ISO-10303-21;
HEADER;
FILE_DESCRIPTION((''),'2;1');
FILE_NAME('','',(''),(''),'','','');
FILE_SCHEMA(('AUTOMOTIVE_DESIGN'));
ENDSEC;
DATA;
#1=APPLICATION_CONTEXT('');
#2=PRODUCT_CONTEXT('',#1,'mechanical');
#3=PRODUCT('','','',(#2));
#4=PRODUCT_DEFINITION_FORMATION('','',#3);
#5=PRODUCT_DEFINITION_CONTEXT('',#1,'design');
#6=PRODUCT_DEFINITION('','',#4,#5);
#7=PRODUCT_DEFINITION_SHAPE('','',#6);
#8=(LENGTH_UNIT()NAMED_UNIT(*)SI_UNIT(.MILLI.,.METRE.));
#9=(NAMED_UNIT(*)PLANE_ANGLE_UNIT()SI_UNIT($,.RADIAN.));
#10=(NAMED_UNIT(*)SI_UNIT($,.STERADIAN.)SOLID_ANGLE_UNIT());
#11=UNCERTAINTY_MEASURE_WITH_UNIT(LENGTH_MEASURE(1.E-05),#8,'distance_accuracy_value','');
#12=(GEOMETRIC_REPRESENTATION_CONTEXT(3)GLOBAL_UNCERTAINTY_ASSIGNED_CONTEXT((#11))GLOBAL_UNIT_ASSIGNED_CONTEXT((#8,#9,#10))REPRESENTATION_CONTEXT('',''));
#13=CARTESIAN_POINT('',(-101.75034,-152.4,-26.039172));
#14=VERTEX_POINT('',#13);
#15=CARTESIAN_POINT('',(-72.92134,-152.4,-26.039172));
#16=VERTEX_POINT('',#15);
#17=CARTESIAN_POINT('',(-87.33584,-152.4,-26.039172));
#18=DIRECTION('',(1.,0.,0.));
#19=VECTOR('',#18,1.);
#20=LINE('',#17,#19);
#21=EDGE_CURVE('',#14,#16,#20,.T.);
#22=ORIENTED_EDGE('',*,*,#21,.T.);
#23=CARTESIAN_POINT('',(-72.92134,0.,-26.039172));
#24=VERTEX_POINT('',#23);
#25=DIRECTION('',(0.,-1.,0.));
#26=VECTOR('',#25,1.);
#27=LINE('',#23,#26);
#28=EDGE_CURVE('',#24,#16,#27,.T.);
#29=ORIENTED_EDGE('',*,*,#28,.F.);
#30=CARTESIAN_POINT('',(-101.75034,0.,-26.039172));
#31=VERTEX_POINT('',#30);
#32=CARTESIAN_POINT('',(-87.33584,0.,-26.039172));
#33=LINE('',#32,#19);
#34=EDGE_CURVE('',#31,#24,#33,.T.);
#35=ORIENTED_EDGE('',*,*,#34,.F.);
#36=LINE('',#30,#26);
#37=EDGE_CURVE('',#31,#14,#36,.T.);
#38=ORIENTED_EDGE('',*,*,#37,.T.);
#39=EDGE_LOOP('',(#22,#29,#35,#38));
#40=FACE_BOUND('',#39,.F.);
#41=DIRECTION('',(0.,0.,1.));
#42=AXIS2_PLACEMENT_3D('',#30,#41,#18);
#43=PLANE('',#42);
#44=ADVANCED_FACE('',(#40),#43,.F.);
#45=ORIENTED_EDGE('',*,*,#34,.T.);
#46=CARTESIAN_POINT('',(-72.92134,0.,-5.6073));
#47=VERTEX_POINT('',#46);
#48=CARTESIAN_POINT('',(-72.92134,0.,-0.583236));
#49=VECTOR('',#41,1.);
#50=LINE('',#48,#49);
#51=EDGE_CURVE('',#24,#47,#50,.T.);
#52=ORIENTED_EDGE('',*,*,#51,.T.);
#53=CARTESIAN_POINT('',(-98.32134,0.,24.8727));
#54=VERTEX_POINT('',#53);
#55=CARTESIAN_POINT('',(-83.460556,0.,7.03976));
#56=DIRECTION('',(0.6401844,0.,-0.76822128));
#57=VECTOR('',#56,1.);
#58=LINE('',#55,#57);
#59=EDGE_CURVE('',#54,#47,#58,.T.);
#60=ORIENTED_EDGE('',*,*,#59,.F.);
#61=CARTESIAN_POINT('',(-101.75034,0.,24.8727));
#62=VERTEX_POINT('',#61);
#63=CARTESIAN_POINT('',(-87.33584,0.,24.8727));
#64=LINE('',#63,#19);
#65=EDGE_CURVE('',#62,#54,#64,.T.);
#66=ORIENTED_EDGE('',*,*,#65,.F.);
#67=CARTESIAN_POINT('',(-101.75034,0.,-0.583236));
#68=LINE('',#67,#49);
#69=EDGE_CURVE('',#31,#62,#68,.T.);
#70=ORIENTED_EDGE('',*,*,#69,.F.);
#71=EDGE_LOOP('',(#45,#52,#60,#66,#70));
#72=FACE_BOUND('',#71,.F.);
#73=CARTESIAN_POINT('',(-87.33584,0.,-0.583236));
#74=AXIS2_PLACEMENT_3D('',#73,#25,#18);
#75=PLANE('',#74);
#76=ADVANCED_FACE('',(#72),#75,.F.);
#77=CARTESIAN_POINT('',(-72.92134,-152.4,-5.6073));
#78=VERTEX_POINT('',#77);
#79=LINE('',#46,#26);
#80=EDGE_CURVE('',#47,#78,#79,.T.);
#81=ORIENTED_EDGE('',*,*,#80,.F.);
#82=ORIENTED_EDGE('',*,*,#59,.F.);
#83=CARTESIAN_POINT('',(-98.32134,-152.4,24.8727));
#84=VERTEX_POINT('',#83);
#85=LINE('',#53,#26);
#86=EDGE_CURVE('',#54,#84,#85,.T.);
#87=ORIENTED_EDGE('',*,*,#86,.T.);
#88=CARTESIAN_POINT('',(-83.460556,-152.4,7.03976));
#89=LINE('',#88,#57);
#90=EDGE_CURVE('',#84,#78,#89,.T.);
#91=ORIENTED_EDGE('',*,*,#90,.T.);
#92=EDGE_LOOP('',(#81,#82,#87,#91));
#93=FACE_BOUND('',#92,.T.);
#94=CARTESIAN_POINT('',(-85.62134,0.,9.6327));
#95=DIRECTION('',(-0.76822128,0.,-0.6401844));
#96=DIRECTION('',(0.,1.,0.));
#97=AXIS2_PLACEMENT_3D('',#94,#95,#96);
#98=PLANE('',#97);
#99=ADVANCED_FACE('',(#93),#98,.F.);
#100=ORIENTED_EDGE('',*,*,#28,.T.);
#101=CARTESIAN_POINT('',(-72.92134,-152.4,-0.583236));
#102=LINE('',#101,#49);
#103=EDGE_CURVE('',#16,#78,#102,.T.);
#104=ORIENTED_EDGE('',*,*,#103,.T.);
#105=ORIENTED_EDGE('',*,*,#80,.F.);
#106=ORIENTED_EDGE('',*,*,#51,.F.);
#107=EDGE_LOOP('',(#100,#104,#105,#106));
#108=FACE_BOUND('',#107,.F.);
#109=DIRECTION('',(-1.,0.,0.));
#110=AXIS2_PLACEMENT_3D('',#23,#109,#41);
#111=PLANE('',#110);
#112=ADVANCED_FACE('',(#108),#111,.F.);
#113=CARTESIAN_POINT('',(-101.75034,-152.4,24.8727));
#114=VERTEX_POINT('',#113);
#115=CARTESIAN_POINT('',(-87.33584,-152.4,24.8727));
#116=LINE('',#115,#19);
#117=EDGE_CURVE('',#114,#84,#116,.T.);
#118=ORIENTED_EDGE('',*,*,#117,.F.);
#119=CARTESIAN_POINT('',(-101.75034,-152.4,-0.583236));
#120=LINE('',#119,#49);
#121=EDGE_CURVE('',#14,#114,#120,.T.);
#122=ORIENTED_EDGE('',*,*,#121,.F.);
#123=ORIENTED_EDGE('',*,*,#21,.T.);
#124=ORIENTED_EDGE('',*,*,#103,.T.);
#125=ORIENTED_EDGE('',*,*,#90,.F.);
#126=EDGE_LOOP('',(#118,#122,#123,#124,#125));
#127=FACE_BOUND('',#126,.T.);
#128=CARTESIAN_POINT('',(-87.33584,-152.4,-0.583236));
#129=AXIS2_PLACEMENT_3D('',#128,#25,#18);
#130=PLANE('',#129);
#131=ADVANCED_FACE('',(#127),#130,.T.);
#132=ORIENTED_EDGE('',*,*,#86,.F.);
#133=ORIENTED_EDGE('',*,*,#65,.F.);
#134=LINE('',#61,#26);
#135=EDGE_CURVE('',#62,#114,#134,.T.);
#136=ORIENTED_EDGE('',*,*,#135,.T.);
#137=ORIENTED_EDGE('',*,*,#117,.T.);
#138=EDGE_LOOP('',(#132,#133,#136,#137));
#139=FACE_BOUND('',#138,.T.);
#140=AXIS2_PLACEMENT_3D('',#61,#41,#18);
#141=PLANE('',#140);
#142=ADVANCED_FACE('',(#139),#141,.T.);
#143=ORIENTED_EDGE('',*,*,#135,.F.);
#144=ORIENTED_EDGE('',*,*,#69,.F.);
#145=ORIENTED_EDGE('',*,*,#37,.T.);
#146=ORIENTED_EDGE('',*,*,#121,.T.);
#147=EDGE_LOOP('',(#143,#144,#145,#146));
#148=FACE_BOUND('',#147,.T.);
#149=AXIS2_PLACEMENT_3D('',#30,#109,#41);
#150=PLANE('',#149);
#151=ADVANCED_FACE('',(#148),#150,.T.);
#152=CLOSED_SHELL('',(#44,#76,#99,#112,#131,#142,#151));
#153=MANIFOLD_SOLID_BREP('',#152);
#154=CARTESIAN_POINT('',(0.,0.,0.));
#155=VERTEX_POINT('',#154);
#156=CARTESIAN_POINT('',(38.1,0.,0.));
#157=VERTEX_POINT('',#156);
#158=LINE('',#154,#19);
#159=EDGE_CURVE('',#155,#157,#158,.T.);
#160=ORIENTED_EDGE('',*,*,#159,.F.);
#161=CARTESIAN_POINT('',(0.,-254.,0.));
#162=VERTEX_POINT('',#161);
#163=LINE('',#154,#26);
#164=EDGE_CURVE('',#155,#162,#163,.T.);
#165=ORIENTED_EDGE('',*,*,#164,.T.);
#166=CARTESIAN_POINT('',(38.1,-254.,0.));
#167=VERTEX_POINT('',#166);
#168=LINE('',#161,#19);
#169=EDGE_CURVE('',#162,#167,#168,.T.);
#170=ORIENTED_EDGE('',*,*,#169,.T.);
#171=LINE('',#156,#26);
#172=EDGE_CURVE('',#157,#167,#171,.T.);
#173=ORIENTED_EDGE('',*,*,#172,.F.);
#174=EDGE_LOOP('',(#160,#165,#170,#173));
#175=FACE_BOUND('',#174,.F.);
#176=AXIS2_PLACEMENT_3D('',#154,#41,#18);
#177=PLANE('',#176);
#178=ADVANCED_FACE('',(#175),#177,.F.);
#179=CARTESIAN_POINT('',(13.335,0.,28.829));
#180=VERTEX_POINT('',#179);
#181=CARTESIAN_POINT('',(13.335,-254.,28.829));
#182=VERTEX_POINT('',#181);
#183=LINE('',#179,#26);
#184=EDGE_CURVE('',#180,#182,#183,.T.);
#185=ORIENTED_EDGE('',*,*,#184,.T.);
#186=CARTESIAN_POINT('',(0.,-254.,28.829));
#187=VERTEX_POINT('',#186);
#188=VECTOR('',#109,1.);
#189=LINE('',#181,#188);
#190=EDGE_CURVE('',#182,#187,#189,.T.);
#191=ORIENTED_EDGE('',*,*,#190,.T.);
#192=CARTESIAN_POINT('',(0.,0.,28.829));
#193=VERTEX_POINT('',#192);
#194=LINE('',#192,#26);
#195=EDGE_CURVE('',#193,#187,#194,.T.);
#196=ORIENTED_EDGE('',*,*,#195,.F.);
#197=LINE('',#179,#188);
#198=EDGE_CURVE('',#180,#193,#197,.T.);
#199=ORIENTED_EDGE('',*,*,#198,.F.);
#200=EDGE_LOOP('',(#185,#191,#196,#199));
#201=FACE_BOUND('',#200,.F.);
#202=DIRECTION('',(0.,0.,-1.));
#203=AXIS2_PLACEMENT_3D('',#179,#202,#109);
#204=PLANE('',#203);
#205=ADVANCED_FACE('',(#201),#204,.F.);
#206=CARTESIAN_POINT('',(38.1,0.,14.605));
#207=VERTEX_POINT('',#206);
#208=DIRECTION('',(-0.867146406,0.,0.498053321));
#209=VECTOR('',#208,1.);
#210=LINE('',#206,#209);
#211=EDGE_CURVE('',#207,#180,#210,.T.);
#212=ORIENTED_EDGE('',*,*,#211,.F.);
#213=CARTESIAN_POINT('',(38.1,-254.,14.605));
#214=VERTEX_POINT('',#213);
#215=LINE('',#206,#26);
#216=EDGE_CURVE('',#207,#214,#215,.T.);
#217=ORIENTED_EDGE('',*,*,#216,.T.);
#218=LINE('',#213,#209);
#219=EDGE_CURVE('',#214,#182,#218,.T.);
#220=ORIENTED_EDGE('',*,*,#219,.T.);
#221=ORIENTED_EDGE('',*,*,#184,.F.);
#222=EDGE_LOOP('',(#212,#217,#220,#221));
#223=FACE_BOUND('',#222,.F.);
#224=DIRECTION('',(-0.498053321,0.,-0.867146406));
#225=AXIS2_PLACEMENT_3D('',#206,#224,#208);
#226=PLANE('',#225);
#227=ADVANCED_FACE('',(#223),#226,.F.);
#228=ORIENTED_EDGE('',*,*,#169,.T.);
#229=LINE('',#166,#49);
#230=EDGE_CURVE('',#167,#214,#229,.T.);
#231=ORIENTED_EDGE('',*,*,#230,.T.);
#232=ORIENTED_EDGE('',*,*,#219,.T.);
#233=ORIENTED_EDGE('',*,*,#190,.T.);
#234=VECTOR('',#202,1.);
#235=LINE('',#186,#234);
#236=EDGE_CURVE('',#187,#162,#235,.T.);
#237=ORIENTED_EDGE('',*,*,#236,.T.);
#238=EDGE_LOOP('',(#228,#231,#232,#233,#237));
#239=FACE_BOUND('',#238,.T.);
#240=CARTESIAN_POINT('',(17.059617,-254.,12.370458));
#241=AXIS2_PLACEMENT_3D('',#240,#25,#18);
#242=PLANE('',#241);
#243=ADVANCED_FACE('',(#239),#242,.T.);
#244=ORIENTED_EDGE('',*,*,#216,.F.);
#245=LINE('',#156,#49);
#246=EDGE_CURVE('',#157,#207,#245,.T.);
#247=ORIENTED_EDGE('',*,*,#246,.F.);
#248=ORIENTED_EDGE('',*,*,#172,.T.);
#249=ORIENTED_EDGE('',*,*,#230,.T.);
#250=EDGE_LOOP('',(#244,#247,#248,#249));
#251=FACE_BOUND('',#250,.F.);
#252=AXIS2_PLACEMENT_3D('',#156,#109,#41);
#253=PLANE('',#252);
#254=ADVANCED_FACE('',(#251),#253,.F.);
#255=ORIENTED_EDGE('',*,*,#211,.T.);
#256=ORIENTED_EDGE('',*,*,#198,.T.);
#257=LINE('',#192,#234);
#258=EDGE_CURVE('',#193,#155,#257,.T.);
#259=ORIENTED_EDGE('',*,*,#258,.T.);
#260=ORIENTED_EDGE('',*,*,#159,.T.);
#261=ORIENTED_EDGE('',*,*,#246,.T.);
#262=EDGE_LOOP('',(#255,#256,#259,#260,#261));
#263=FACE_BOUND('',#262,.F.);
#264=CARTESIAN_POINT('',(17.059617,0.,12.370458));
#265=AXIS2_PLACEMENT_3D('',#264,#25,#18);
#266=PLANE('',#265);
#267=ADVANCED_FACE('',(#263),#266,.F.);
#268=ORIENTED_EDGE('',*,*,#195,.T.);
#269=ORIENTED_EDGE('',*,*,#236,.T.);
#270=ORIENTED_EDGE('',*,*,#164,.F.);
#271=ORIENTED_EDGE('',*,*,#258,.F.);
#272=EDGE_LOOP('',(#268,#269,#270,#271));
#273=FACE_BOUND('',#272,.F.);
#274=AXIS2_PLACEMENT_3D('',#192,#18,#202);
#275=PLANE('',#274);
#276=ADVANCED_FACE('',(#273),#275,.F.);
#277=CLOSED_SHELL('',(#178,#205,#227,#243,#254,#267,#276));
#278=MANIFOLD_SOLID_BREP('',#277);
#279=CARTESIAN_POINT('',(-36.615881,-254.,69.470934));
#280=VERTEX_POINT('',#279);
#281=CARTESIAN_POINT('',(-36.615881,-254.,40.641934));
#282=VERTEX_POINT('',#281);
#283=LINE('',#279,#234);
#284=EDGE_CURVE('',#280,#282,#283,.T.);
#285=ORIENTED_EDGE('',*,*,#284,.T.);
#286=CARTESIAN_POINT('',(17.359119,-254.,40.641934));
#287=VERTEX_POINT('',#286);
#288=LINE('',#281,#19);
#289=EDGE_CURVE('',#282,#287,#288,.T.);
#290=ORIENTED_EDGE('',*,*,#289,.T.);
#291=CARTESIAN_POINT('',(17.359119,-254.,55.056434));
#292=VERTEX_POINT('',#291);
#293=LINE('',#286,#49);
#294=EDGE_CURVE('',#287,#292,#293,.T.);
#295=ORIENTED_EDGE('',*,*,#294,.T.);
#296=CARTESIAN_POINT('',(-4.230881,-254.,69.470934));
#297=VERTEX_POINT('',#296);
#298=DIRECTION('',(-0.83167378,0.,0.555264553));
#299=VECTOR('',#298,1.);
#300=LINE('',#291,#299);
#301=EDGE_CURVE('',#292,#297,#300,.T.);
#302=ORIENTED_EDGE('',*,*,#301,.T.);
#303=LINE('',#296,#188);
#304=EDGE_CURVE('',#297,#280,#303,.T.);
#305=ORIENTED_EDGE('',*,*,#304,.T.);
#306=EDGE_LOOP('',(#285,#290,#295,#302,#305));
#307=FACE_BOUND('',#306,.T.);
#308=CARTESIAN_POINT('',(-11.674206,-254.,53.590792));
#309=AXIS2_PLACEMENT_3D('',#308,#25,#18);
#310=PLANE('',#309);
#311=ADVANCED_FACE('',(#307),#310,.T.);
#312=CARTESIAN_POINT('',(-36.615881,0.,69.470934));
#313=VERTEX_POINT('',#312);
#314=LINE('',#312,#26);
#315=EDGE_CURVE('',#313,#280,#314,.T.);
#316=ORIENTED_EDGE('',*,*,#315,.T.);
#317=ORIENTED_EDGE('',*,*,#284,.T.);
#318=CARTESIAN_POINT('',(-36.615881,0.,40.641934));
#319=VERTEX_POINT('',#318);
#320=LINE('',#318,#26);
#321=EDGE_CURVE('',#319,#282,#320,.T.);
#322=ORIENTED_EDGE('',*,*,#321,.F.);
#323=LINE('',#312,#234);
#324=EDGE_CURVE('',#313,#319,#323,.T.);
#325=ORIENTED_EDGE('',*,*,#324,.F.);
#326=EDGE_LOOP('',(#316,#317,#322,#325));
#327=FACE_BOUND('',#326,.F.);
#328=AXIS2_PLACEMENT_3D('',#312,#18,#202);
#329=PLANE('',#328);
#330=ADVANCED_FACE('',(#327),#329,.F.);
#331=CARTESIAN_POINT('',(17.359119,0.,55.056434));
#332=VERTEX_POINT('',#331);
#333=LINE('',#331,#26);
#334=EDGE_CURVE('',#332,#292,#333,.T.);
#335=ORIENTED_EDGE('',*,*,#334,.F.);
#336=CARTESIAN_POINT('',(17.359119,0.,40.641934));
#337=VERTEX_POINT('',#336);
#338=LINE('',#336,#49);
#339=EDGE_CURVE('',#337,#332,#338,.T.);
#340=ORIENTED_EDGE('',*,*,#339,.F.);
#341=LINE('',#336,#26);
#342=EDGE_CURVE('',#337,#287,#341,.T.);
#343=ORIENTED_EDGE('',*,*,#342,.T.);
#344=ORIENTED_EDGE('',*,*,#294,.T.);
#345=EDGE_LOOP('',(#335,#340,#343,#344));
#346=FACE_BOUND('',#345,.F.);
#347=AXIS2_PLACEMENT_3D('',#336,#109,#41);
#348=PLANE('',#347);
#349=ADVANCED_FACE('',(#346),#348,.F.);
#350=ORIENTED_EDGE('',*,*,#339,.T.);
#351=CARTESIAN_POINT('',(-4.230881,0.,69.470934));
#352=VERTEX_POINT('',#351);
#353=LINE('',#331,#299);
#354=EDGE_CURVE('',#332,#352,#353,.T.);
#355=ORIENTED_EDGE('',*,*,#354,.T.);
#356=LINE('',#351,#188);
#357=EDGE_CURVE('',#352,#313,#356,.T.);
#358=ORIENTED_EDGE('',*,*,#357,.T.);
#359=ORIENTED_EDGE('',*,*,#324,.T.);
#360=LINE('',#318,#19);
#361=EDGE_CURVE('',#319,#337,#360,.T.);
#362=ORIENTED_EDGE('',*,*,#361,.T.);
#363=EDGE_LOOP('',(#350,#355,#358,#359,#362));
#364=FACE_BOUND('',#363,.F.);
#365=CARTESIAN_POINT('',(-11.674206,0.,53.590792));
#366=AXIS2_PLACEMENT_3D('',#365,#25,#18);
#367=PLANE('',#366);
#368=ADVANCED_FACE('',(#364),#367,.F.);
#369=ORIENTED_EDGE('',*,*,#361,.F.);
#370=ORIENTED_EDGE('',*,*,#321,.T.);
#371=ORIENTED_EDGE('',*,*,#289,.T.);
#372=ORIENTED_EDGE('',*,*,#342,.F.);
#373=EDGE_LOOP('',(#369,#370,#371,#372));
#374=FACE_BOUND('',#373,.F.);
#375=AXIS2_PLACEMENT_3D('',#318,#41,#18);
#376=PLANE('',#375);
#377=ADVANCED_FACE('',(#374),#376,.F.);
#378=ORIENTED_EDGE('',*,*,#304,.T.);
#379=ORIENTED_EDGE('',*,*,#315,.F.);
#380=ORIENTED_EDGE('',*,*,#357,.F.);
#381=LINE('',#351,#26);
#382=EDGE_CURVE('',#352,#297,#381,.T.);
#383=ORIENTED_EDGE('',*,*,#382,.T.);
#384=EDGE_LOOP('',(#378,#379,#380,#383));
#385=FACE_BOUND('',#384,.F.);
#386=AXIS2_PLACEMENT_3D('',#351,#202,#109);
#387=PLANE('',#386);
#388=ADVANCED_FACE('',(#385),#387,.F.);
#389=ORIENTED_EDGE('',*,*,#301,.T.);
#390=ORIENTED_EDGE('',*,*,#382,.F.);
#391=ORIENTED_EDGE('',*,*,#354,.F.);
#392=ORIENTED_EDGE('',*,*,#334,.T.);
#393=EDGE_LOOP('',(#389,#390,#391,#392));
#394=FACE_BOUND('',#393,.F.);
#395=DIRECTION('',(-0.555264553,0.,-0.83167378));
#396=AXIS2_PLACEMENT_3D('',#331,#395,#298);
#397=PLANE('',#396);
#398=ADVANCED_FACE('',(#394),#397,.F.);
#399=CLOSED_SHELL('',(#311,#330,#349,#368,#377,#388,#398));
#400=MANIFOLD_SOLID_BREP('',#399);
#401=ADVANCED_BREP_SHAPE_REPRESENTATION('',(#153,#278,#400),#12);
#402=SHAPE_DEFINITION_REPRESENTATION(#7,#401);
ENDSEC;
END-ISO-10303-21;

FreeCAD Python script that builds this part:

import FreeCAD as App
import Part
import Sketcher
Q = App.Units.Quantity


def edges_at(feature, points):
    """Names of the edges that pass closest to the given points."""
    edges = feature.Shape.Edges
    near = lambda p: min(range(len(edges)), key=lambda i: edges[i].distToShape(Part.Vertex(*p))[0])
    return sorted({f"Edge{near(p) + 1}" for p in points})


def add_polygon(sketch, points):
    """Adds a closed chain of lines whose ends are joined by coincident constraints."""
    first, n = sketch.GeometryCount, len(points)
    for a, b in zip(points, points[1:] + points[:1]):
        sketch.addGeometry(Part.LineSegment(App.Vector(*a, 0), App.Vector(*b, 0)), False)
    for i in range(n):
        sketch.addConstraint(Sketcher.Constraint("Coincident", first + i, 2, first + (i + 1) % n, 1))

doc = App.newDocument("Part")
body = doc.addObject("PartDesign::Body", "Body")

# Sketch on XZ plane
sketch1 = doc.addObject("Sketcher::SketchObject", "Sketch")
body.addObject(sketch1)
sketch1.AttachmentSupport = (doc.XZ_Plane, [""])
sketch1.MapMode = "FlatFace"
add_polygon(sketch1, [(0, 29), (0, 0), (38, 0), (38, 15), (13, 29)])  # lines 0-4
sketch1.addConstraint(Sketcher.Constraint("Vertical", 0))
sketch1.addConstraint(Sketcher.Constraint("Horizontal", 1))
sketch1.addConstraint(Sketcher.Constraint("Vertical", 2))
sketch1.addConstraint(Sketcher.Constraint("Horizontal", 4))
sketch1.addConstraint(Sketcher.Constraint("Coincident", 0, 2, -1, 1))
sketch1.addConstraint(Sketcher.Constraint("DistanceX", 1, 1, 1, 2, Q("1.5 in")))
sketch1.addConstraint(Sketcher.Constraint("DistanceX", 4, 2, 4, 1, Q("0.525 in")))
sketch1.addConstraint(Sketcher.Constraint("DistanceY", 0, 2, 0, 1, Q("1.135 in")))
sketch1.addConstraint(Sketcher.Constraint("DistanceY", 2, 1, 2, 2, Q("0.575 in")))
pad1 = doc.addObject("PartDesign::Pad", "Pad")
body.addObject(pad1)
pad1.Profile = sketch1
pad1.Length = Q("10 in")
body2 = doc.addObject("PartDesign::Body", "Body001")

# Sketch on XZ plane
sketch2 = doc.addObject("Sketcher::SketchObject", "Sketch001")
body2.addObject(sketch2)
sketch2.AttachmentSupport = (doc.getObject("XZ_Plane001"), [""])
sketch2.MapMode = "FlatFace"
add_polygon(sketch2, [(-4, 69), (-37, 69), (-37, 41), (17, 41), (17, 55)])  # lines 0-4
sketch2.addConstraint(Sketcher.Constraint("Horizontal", 0))
sketch2.addConstraint(Sketcher.Constraint("Vertical", 1))
sketch2.addConstraint(Sketcher.Constraint("Horizontal", 2))
sketch2.addConstraint(Sketcher.Constraint("Vertical", 3))
sketch2.addConstraint(Sketcher.Constraint("DistanceX", 0, 2, 0, 1, Q("1.275 in")))
sketch2.addConstraint(Sketcher.Constraint("DistanceX", 2, 1, 2, 2, Q("2.125 in")))
sketch2.addConstraint(Sketcher.Constraint("DistanceY", 1, 2, 1, 1, Q("1.135 in")))
sketch2.addConstraint(Sketcher.Constraint("DistanceY", 3, 1, 3, 2, Q("0.5675 in")))
sketch2.addConstraint(Sketcher.Constraint("DistanceX", 0, 2, -1, 1, Q("36.615881 mm")))
sketch2.addConstraint(Sketcher.Constraint("DistanceY", -1, 1, 0, 2, Q("69.470934 mm")))
pad2 = doc.addObject("PartDesign::Pad", "Pad001")
body2.addObject(pad2)
pad2.Profile = sketch2
pad2.Length = Q("10 in")
body3 = doc.addObject("PartDesign::Body", "Body002")

# Sketch on XZ plane
sketch3 = doc.addObject("Sketcher::SketchObject", "Sketch002")
body3.addObject(sketch3)
sketch3.AttachmentSupport = (doc.getObject("XZ_Plane002"), [""])
sketch3.MapMode = "FlatFace"
add_polygon(sketch3, [(-102, 25), (-102, -26), (-73, -26), (-73, 25)])  # lines 0-3
sketch3.addConstraint(Sketcher.Constraint("Vertical", 0))
sketch3.addConstraint(Sketcher.Constraint("Horizontal", 1))
sketch3.addConstraint(Sketcher.Constraint("Vertical", 2))
sketch3.addConstraint(Sketcher.Constraint("Horizontal", 3))
sketch3.addConstraint(Sketcher.Constraint("DistanceX", 1, 1, 1, 2, Q("1.135 in")))
sketch3.addConstraint(Sketcher.Constraint("DistanceY", -1, 1, 2, 2, Q("24.8727 mm")))
sketch3.addConstraint(Sketcher.Constraint("DistanceY", 0, 2, 0, 1, Q("50.911873 mm")))
sketch3.addConstraint(Sketcher.Constraint("DistanceX", 0, 2, -1, 1, Q("101.75034 mm")))
pad3 = doc.addObject("PartDesign::Pad", "Pad002")
body3.addObject(pad3)
pad3.Profile = sketch3
pad3.Length = Q("6 in")
doc.recompute()

chamfer = doc.addObject("PartDesign::Chamfer", "Chamfer")
body3.addObject(chamfer)
chamfer.Base = (pad3, edges_at(pad3, [(-72.921, -76.2, 24.873)]))
chamfer.ChamferType = "Two distances"
chamfer.Size = Q("1 in")
chamfer.Size2 = Q("1.2 in")
chamfer.FlipDirection = True

doc.recompute()
